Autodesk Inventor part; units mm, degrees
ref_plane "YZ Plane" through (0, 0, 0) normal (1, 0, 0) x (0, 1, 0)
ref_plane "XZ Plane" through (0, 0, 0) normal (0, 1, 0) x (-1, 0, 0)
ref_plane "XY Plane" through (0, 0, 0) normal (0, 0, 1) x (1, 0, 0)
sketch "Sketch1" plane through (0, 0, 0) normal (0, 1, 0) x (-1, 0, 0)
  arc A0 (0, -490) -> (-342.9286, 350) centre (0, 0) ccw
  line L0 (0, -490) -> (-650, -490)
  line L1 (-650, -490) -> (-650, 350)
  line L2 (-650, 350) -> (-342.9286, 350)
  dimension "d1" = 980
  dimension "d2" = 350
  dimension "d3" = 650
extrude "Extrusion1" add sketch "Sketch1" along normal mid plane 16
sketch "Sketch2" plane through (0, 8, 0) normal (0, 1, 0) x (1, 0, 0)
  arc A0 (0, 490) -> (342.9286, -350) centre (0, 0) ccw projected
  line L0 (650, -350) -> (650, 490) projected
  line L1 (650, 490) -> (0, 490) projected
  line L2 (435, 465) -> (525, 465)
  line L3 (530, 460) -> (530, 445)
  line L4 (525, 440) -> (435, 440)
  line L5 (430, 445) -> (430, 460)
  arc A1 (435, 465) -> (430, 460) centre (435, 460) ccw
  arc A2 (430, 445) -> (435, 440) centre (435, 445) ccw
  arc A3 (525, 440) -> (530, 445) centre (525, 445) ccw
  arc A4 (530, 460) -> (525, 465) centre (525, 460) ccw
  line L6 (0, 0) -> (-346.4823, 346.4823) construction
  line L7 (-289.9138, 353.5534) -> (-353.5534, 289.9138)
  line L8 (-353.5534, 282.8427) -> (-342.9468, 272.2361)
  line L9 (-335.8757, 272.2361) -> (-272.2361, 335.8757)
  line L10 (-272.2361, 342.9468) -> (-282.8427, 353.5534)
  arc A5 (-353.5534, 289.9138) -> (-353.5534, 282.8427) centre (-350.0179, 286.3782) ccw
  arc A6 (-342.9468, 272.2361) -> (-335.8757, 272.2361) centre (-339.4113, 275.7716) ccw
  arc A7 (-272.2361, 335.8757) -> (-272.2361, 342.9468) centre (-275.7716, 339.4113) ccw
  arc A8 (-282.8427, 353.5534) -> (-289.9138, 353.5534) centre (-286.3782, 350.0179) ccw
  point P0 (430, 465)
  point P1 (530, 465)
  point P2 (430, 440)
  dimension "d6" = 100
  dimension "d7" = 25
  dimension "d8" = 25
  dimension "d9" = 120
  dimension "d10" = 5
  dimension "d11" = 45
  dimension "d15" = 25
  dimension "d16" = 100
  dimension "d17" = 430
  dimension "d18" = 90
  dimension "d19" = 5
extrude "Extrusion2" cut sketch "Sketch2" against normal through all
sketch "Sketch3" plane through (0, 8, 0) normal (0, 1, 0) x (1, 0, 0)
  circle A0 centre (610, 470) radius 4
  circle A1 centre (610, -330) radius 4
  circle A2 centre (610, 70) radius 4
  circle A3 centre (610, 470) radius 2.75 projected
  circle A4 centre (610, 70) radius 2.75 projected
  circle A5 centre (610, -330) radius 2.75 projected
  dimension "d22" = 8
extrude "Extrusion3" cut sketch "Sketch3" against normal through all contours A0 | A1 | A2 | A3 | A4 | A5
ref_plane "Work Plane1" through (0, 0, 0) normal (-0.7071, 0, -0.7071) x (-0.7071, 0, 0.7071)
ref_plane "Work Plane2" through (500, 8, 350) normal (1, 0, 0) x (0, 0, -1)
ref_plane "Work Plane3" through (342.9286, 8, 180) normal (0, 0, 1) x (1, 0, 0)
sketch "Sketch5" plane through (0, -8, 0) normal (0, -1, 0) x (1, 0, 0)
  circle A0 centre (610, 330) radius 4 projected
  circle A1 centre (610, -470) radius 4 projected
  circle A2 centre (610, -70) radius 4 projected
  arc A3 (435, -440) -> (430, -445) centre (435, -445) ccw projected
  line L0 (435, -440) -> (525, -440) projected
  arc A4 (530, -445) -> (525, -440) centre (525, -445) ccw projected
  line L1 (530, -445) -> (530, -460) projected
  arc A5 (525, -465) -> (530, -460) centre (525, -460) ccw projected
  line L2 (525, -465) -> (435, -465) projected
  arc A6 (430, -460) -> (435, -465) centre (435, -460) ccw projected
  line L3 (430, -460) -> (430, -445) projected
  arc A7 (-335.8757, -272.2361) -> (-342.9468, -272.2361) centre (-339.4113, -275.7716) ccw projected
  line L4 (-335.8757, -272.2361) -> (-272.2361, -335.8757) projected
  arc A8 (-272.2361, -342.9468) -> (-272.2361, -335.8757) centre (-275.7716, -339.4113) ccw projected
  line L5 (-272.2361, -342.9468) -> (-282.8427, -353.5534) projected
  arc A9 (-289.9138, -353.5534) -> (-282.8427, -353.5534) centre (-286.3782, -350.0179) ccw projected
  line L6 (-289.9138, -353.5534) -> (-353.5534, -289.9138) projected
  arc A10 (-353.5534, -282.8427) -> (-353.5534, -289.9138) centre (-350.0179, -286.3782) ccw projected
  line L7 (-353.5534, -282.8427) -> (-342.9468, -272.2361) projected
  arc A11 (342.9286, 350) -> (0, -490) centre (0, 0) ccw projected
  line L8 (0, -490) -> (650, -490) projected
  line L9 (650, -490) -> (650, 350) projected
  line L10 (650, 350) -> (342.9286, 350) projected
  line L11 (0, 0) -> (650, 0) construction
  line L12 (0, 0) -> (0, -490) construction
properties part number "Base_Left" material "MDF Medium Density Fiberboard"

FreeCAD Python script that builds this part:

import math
import FreeCAD as App
import Part
import Sketcher
from FreeCAD import Vector

doc = App.newDocument("Part")
body = doc.addObject("PartDesign::Body", "Body")

# Sketch on XZ plane
sketch1 = doc.addObject("Sketcher::SketchObject", "Sketch")
body.addObject(sketch1)
sketch1.AttachmentSupport = (doc.XZ_Plane, [""])
sketch1.MapMode = "FlatFace"
sketch1.addGeometry([
    Part.LineSegment(Vector(650, -490, 0), Vector(0, -490, 0)),
    Part.ArcOfCircle(Part.Circle(Vector(0, 0, 0), Vector(0, 0, 1), 490), math.radians(45.584688), math.radians(270)),
    Part.LineSegment(Vector(342.9286, 350, 0), Vector(650, 350, 0)),
    Part.LineSegment(Vector(650, 350, 0), Vector(650, -490, 0)),
], False)
sketch1.addConstraint([
    Sketcher.Constraint("Tangent", 0, 2, 1, 2),
    Sketcher.Constraint("Coincident", 1, 1, 2, 1),
    Sketcher.Constraint("Coincident", 2, 2, 3, 1),
    Sketcher.Constraint("Coincident", 3, 2, 0, 1),
    Sketcher.Constraint("Horizontal", 0),
    Sketcher.Constraint("Horizontal", 2),
    Sketcher.Constraint("Vertical", 3),
    Sketcher.Constraint("Coincident", 1, 3, -1, 1),
    Sketcher.Constraint("Radius", 1, 490.0),
    Sketcher.Constraint("DistanceX", 0, 2, 0, 1, 650.0),
    Sketcher.Constraint("DistanceY", -1, 1, 2, 2, 350.0),
])
pad1 = doc.addObject("PartDesign::Pad", "Pad")
body.addObject(pad1)
pad1.Profile = sketch1
pad1.Length = 16
pad1.Midplane = True

# Sketch on XZ plane
sketch2 = doc.addObject("Sketcher::SketchObject", "Sketch001")
body.addObject(sketch2)
sketch2.AttachmentSupport = (doc.XZ_Plane, [""])
sketch2.MapMode = "FlatFace"
sketch2.AttachmentOffset = App.Placement(Vector(0, 0, -8), App.Rotation())
sketch2.addGeometry([
    Part.LineSegment(Vector(525, -465, 0), Vector(435, -465, 0)),  # 0
    Part.ArcOfCircle(Part.Circle(Vector(435, -460, 0), Vector(0, 0, 1), 5), math.radians(180), math.radians(270)),  # 1
    Part.LineSegment(Vector(430, -460, 0), Vector(430, -445, 0)),  # 2
    Part.ArcOfCircle(Part.Circle(Vector(435, -445, 0), Vector(0, 0, 1), 5), math.radians(90), math.radians(180)),  # 3
    Part.LineSegment(Vector(435, -440, 0), Vector(525, -440, 0)),  # 4
    Part.ArcOfCircle(Part.Circle(Vector(525, -445, 0), Vector(0, 0, 1), 5), math.radians(0), math.radians(90)),  # 5
    Part.LineSegment(Vector(530, -445, 0), Vector(530, -460, 0)),  # 6
    Part.ArcOfCircle(Part.Circle(Vector(525, -460, 0), Vector(0, 0, 1), 5), math.radians(-90), math.radians(0)),  # 7
    Part.ArcOfCircle(Part.Circle(Vector(-286.3782, -350.0179, 0), Vector(0, 0, 1), 4.999952), math.radians(-135.00081), math.radians(-45)),  # 8
    Part.LineSegment(Vector(-289.9138, -353.5534, 0), Vector(-353.5534, -289.9138, 0)),  # 9
    Part.ArcOfCircle(Part.Circle(Vector(-350.0179, -286.3782, 0), Vector(0, 0, 1), 5.000023), math.radians(135), math.radians(225.00081)),  # 10
    Part.LineSegment(Vector(-353.5534, -282.8427, 0), Vector(-342.9468, -272.2361, 0)),  # 11
    Part.ArcOfCircle(Part.Circle(Vector(-339.4113, -275.7716, 0), Vector(0, 0, 1), 4.999952), math.radians(44.99919), math.radians(135)),  # 12
    Part.LineSegment(Vector(-335.8757, -272.2361, 0), Vector(-272.2361, -335.8757, 0)),  # 13
    Part.ArcOfCircle(Part.Circle(Vector(-275.7716, -339.4113, 0), Vector(0, 0, 1), 5.000023), math.radians(-45), math.radians(45.00081)),  # 14
    Part.LineSegment(Vector(-272.2361, -342.9468, 0), Vector(-282.8427, -353.5534, 0)),  # 15
], False)
sketch2.addConstraint([
    Sketcher.Constraint("Tangent", 0, 2, 1, 2),
    Sketcher.Constraint("Tangent", 1, 1, 2, 1),
    Sketcher.Constraint("Tangent", 2, 2, 3, 2),
    Sketcher.Constraint("Tangent", 3, 1, 4, 1),
    Sketcher.Constraint("Tangent", 4, 2, 5, 2),
    Sketcher.Constraint("Tangent", 5, 1, 6, 1),
    Sketcher.Constraint("Tangent", 6, 2, 7, 2),
    Sketcher.Constraint("Tangent", 7, 1, 0, 1),
    Sketcher.Constraint("Tangent", 8, 1, 9, 1),
    Sketcher.Constraint("Tangent", 9, 2, 10, 2),
    Sketcher.Constraint("Tangent", 10, 1, 11, 1),
    Sketcher.Constraint("Tangent", 11, 2, 12, 2),
    Sketcher.Constraint("Tangent", 12, 1, 13, 1),
    Sketcher.Constraint("Tangent", 13, 2, 14, 2),
    Sketcher.Constraint("Tangent", 14, 1, 15, 1),
    Sketcher.Constraint("Tangent", 15, 2, 8, 2),
    Sketcher.Constraint("Horizontal", 0),
    Sketcher.Constraint("Vertical", 2),
    Sketcher.Constraint("Horizontal", 4),
    Sketcher.Constraint("Vertical", 6),
    Sketcher.Constraint("Equal", 1, 3),
    Sketcher.Constraint("Equal", 3, 5),
    Sketcher.Constraint("Equal", 5, 7),
    Sketcher.Constraint("Equal", 7, 8),
    Sketcher.Constraint("Equal", 8, 10),
    Sketcher.Constraint("Equal", 10, 12),
    Sketcher.Constraint("Equal", 12, 14),
    Sketcher.Constraint("Perpendicular", 9, 11),
    Sketcher.Constraint("Perpendicular", 11, 13),
    Sketcher.Constraint("Perpendicular", 13, 15),
    Sketcher.Constraint("Horizontal", 11, 2, 12, 1),
    Sketcher.Constraint("Radius", 1, 5.0),
    Sketcher.Constraint("DistanceX", 0, 2, 0, 1, 90.0),
    Sketcher.Constraint("Distance", 9, 90.0),
    Sketcher.Constraint("DistanceX", -1, 1, 1, 1, 430.0),
    Sketcher.Constraint("DistanceY", 0, 2, 3, 1, 25.0),
    Sketcher.Constraint("Distance", 11, 15.0),
    Sketcher.Constraint("DistanceY", 1, 3, -1, 1, 460.0),
    Sketcher.Constraint("DistanceY", 8, 3, -1, 1, 350.018),
    Sketcher.Constraint("DistanceX", 10, 3, -1, 1, 350.018),
])
pocket1 = doc.addObject("PartDesign::Pocket", "Pocket")
body.addObject(pocket1)
pocket1.Profile = sketch2
pocket1.Type = "ThroughAll"
pocket1.Reversed = True

# Sketch on XZ plane
sketch3 = doc.addObject("Sketcher::SketchObject", "Sketch002")
body.addObject(sketch3)
sketch3.AttachmentSupport = (doc.XZ_Plane, [""])
sketch3.MapMode = "FlatFace"
sketch3.AttachmentOffset = App.Placement(Vector(0, 0, -8), App.Rotation())
sketch3.addGeometry([
    Part.Circle(Vector(610, -470, 0), Vector(0, 0, 1), 4),
    Part.Circle(Vector(610, 330, 0), Vector(0, 0, 1), 4),
    Part.Circle(Vector(610, -70, 0), Vector(0, 0, 1), 4),
], False)
sketch3.addConstraint([
    Sketcher.Constraint("Equal", 0, 1),
    Sketcher.Constraint("Equal", 1, 2),
    Sketcher.Constraint("Vertical", 0, 3, 1, 3),
    Sketcher.Constraint("Vertical", 1, 3, 2, 3),
    Sketcher.Constraint("Diameter", 0, 8.0),
    Sketcher.Constraint("DistanceX", -1, 1, 0, 3, 610.0),
    Sketcher.Constraint("DistanceY", 0, 3, -1, 1, 470.0),
    Sketcher.Constraint("DistanceY", -1, 1, 1, 3, 330.0),
    Sketcher.Constraint("DistanceY", 2, 3, -1, 1, 70.0),
])
pocket2 = doc.addObject("PartDesign::Pocket", "Pocket001")
body.addObject(pocket2)
pocket2.Profile = sketch3
pocket2.Type = "ThroughAll"
pocket2.Reversed = True

doc.recompute()
